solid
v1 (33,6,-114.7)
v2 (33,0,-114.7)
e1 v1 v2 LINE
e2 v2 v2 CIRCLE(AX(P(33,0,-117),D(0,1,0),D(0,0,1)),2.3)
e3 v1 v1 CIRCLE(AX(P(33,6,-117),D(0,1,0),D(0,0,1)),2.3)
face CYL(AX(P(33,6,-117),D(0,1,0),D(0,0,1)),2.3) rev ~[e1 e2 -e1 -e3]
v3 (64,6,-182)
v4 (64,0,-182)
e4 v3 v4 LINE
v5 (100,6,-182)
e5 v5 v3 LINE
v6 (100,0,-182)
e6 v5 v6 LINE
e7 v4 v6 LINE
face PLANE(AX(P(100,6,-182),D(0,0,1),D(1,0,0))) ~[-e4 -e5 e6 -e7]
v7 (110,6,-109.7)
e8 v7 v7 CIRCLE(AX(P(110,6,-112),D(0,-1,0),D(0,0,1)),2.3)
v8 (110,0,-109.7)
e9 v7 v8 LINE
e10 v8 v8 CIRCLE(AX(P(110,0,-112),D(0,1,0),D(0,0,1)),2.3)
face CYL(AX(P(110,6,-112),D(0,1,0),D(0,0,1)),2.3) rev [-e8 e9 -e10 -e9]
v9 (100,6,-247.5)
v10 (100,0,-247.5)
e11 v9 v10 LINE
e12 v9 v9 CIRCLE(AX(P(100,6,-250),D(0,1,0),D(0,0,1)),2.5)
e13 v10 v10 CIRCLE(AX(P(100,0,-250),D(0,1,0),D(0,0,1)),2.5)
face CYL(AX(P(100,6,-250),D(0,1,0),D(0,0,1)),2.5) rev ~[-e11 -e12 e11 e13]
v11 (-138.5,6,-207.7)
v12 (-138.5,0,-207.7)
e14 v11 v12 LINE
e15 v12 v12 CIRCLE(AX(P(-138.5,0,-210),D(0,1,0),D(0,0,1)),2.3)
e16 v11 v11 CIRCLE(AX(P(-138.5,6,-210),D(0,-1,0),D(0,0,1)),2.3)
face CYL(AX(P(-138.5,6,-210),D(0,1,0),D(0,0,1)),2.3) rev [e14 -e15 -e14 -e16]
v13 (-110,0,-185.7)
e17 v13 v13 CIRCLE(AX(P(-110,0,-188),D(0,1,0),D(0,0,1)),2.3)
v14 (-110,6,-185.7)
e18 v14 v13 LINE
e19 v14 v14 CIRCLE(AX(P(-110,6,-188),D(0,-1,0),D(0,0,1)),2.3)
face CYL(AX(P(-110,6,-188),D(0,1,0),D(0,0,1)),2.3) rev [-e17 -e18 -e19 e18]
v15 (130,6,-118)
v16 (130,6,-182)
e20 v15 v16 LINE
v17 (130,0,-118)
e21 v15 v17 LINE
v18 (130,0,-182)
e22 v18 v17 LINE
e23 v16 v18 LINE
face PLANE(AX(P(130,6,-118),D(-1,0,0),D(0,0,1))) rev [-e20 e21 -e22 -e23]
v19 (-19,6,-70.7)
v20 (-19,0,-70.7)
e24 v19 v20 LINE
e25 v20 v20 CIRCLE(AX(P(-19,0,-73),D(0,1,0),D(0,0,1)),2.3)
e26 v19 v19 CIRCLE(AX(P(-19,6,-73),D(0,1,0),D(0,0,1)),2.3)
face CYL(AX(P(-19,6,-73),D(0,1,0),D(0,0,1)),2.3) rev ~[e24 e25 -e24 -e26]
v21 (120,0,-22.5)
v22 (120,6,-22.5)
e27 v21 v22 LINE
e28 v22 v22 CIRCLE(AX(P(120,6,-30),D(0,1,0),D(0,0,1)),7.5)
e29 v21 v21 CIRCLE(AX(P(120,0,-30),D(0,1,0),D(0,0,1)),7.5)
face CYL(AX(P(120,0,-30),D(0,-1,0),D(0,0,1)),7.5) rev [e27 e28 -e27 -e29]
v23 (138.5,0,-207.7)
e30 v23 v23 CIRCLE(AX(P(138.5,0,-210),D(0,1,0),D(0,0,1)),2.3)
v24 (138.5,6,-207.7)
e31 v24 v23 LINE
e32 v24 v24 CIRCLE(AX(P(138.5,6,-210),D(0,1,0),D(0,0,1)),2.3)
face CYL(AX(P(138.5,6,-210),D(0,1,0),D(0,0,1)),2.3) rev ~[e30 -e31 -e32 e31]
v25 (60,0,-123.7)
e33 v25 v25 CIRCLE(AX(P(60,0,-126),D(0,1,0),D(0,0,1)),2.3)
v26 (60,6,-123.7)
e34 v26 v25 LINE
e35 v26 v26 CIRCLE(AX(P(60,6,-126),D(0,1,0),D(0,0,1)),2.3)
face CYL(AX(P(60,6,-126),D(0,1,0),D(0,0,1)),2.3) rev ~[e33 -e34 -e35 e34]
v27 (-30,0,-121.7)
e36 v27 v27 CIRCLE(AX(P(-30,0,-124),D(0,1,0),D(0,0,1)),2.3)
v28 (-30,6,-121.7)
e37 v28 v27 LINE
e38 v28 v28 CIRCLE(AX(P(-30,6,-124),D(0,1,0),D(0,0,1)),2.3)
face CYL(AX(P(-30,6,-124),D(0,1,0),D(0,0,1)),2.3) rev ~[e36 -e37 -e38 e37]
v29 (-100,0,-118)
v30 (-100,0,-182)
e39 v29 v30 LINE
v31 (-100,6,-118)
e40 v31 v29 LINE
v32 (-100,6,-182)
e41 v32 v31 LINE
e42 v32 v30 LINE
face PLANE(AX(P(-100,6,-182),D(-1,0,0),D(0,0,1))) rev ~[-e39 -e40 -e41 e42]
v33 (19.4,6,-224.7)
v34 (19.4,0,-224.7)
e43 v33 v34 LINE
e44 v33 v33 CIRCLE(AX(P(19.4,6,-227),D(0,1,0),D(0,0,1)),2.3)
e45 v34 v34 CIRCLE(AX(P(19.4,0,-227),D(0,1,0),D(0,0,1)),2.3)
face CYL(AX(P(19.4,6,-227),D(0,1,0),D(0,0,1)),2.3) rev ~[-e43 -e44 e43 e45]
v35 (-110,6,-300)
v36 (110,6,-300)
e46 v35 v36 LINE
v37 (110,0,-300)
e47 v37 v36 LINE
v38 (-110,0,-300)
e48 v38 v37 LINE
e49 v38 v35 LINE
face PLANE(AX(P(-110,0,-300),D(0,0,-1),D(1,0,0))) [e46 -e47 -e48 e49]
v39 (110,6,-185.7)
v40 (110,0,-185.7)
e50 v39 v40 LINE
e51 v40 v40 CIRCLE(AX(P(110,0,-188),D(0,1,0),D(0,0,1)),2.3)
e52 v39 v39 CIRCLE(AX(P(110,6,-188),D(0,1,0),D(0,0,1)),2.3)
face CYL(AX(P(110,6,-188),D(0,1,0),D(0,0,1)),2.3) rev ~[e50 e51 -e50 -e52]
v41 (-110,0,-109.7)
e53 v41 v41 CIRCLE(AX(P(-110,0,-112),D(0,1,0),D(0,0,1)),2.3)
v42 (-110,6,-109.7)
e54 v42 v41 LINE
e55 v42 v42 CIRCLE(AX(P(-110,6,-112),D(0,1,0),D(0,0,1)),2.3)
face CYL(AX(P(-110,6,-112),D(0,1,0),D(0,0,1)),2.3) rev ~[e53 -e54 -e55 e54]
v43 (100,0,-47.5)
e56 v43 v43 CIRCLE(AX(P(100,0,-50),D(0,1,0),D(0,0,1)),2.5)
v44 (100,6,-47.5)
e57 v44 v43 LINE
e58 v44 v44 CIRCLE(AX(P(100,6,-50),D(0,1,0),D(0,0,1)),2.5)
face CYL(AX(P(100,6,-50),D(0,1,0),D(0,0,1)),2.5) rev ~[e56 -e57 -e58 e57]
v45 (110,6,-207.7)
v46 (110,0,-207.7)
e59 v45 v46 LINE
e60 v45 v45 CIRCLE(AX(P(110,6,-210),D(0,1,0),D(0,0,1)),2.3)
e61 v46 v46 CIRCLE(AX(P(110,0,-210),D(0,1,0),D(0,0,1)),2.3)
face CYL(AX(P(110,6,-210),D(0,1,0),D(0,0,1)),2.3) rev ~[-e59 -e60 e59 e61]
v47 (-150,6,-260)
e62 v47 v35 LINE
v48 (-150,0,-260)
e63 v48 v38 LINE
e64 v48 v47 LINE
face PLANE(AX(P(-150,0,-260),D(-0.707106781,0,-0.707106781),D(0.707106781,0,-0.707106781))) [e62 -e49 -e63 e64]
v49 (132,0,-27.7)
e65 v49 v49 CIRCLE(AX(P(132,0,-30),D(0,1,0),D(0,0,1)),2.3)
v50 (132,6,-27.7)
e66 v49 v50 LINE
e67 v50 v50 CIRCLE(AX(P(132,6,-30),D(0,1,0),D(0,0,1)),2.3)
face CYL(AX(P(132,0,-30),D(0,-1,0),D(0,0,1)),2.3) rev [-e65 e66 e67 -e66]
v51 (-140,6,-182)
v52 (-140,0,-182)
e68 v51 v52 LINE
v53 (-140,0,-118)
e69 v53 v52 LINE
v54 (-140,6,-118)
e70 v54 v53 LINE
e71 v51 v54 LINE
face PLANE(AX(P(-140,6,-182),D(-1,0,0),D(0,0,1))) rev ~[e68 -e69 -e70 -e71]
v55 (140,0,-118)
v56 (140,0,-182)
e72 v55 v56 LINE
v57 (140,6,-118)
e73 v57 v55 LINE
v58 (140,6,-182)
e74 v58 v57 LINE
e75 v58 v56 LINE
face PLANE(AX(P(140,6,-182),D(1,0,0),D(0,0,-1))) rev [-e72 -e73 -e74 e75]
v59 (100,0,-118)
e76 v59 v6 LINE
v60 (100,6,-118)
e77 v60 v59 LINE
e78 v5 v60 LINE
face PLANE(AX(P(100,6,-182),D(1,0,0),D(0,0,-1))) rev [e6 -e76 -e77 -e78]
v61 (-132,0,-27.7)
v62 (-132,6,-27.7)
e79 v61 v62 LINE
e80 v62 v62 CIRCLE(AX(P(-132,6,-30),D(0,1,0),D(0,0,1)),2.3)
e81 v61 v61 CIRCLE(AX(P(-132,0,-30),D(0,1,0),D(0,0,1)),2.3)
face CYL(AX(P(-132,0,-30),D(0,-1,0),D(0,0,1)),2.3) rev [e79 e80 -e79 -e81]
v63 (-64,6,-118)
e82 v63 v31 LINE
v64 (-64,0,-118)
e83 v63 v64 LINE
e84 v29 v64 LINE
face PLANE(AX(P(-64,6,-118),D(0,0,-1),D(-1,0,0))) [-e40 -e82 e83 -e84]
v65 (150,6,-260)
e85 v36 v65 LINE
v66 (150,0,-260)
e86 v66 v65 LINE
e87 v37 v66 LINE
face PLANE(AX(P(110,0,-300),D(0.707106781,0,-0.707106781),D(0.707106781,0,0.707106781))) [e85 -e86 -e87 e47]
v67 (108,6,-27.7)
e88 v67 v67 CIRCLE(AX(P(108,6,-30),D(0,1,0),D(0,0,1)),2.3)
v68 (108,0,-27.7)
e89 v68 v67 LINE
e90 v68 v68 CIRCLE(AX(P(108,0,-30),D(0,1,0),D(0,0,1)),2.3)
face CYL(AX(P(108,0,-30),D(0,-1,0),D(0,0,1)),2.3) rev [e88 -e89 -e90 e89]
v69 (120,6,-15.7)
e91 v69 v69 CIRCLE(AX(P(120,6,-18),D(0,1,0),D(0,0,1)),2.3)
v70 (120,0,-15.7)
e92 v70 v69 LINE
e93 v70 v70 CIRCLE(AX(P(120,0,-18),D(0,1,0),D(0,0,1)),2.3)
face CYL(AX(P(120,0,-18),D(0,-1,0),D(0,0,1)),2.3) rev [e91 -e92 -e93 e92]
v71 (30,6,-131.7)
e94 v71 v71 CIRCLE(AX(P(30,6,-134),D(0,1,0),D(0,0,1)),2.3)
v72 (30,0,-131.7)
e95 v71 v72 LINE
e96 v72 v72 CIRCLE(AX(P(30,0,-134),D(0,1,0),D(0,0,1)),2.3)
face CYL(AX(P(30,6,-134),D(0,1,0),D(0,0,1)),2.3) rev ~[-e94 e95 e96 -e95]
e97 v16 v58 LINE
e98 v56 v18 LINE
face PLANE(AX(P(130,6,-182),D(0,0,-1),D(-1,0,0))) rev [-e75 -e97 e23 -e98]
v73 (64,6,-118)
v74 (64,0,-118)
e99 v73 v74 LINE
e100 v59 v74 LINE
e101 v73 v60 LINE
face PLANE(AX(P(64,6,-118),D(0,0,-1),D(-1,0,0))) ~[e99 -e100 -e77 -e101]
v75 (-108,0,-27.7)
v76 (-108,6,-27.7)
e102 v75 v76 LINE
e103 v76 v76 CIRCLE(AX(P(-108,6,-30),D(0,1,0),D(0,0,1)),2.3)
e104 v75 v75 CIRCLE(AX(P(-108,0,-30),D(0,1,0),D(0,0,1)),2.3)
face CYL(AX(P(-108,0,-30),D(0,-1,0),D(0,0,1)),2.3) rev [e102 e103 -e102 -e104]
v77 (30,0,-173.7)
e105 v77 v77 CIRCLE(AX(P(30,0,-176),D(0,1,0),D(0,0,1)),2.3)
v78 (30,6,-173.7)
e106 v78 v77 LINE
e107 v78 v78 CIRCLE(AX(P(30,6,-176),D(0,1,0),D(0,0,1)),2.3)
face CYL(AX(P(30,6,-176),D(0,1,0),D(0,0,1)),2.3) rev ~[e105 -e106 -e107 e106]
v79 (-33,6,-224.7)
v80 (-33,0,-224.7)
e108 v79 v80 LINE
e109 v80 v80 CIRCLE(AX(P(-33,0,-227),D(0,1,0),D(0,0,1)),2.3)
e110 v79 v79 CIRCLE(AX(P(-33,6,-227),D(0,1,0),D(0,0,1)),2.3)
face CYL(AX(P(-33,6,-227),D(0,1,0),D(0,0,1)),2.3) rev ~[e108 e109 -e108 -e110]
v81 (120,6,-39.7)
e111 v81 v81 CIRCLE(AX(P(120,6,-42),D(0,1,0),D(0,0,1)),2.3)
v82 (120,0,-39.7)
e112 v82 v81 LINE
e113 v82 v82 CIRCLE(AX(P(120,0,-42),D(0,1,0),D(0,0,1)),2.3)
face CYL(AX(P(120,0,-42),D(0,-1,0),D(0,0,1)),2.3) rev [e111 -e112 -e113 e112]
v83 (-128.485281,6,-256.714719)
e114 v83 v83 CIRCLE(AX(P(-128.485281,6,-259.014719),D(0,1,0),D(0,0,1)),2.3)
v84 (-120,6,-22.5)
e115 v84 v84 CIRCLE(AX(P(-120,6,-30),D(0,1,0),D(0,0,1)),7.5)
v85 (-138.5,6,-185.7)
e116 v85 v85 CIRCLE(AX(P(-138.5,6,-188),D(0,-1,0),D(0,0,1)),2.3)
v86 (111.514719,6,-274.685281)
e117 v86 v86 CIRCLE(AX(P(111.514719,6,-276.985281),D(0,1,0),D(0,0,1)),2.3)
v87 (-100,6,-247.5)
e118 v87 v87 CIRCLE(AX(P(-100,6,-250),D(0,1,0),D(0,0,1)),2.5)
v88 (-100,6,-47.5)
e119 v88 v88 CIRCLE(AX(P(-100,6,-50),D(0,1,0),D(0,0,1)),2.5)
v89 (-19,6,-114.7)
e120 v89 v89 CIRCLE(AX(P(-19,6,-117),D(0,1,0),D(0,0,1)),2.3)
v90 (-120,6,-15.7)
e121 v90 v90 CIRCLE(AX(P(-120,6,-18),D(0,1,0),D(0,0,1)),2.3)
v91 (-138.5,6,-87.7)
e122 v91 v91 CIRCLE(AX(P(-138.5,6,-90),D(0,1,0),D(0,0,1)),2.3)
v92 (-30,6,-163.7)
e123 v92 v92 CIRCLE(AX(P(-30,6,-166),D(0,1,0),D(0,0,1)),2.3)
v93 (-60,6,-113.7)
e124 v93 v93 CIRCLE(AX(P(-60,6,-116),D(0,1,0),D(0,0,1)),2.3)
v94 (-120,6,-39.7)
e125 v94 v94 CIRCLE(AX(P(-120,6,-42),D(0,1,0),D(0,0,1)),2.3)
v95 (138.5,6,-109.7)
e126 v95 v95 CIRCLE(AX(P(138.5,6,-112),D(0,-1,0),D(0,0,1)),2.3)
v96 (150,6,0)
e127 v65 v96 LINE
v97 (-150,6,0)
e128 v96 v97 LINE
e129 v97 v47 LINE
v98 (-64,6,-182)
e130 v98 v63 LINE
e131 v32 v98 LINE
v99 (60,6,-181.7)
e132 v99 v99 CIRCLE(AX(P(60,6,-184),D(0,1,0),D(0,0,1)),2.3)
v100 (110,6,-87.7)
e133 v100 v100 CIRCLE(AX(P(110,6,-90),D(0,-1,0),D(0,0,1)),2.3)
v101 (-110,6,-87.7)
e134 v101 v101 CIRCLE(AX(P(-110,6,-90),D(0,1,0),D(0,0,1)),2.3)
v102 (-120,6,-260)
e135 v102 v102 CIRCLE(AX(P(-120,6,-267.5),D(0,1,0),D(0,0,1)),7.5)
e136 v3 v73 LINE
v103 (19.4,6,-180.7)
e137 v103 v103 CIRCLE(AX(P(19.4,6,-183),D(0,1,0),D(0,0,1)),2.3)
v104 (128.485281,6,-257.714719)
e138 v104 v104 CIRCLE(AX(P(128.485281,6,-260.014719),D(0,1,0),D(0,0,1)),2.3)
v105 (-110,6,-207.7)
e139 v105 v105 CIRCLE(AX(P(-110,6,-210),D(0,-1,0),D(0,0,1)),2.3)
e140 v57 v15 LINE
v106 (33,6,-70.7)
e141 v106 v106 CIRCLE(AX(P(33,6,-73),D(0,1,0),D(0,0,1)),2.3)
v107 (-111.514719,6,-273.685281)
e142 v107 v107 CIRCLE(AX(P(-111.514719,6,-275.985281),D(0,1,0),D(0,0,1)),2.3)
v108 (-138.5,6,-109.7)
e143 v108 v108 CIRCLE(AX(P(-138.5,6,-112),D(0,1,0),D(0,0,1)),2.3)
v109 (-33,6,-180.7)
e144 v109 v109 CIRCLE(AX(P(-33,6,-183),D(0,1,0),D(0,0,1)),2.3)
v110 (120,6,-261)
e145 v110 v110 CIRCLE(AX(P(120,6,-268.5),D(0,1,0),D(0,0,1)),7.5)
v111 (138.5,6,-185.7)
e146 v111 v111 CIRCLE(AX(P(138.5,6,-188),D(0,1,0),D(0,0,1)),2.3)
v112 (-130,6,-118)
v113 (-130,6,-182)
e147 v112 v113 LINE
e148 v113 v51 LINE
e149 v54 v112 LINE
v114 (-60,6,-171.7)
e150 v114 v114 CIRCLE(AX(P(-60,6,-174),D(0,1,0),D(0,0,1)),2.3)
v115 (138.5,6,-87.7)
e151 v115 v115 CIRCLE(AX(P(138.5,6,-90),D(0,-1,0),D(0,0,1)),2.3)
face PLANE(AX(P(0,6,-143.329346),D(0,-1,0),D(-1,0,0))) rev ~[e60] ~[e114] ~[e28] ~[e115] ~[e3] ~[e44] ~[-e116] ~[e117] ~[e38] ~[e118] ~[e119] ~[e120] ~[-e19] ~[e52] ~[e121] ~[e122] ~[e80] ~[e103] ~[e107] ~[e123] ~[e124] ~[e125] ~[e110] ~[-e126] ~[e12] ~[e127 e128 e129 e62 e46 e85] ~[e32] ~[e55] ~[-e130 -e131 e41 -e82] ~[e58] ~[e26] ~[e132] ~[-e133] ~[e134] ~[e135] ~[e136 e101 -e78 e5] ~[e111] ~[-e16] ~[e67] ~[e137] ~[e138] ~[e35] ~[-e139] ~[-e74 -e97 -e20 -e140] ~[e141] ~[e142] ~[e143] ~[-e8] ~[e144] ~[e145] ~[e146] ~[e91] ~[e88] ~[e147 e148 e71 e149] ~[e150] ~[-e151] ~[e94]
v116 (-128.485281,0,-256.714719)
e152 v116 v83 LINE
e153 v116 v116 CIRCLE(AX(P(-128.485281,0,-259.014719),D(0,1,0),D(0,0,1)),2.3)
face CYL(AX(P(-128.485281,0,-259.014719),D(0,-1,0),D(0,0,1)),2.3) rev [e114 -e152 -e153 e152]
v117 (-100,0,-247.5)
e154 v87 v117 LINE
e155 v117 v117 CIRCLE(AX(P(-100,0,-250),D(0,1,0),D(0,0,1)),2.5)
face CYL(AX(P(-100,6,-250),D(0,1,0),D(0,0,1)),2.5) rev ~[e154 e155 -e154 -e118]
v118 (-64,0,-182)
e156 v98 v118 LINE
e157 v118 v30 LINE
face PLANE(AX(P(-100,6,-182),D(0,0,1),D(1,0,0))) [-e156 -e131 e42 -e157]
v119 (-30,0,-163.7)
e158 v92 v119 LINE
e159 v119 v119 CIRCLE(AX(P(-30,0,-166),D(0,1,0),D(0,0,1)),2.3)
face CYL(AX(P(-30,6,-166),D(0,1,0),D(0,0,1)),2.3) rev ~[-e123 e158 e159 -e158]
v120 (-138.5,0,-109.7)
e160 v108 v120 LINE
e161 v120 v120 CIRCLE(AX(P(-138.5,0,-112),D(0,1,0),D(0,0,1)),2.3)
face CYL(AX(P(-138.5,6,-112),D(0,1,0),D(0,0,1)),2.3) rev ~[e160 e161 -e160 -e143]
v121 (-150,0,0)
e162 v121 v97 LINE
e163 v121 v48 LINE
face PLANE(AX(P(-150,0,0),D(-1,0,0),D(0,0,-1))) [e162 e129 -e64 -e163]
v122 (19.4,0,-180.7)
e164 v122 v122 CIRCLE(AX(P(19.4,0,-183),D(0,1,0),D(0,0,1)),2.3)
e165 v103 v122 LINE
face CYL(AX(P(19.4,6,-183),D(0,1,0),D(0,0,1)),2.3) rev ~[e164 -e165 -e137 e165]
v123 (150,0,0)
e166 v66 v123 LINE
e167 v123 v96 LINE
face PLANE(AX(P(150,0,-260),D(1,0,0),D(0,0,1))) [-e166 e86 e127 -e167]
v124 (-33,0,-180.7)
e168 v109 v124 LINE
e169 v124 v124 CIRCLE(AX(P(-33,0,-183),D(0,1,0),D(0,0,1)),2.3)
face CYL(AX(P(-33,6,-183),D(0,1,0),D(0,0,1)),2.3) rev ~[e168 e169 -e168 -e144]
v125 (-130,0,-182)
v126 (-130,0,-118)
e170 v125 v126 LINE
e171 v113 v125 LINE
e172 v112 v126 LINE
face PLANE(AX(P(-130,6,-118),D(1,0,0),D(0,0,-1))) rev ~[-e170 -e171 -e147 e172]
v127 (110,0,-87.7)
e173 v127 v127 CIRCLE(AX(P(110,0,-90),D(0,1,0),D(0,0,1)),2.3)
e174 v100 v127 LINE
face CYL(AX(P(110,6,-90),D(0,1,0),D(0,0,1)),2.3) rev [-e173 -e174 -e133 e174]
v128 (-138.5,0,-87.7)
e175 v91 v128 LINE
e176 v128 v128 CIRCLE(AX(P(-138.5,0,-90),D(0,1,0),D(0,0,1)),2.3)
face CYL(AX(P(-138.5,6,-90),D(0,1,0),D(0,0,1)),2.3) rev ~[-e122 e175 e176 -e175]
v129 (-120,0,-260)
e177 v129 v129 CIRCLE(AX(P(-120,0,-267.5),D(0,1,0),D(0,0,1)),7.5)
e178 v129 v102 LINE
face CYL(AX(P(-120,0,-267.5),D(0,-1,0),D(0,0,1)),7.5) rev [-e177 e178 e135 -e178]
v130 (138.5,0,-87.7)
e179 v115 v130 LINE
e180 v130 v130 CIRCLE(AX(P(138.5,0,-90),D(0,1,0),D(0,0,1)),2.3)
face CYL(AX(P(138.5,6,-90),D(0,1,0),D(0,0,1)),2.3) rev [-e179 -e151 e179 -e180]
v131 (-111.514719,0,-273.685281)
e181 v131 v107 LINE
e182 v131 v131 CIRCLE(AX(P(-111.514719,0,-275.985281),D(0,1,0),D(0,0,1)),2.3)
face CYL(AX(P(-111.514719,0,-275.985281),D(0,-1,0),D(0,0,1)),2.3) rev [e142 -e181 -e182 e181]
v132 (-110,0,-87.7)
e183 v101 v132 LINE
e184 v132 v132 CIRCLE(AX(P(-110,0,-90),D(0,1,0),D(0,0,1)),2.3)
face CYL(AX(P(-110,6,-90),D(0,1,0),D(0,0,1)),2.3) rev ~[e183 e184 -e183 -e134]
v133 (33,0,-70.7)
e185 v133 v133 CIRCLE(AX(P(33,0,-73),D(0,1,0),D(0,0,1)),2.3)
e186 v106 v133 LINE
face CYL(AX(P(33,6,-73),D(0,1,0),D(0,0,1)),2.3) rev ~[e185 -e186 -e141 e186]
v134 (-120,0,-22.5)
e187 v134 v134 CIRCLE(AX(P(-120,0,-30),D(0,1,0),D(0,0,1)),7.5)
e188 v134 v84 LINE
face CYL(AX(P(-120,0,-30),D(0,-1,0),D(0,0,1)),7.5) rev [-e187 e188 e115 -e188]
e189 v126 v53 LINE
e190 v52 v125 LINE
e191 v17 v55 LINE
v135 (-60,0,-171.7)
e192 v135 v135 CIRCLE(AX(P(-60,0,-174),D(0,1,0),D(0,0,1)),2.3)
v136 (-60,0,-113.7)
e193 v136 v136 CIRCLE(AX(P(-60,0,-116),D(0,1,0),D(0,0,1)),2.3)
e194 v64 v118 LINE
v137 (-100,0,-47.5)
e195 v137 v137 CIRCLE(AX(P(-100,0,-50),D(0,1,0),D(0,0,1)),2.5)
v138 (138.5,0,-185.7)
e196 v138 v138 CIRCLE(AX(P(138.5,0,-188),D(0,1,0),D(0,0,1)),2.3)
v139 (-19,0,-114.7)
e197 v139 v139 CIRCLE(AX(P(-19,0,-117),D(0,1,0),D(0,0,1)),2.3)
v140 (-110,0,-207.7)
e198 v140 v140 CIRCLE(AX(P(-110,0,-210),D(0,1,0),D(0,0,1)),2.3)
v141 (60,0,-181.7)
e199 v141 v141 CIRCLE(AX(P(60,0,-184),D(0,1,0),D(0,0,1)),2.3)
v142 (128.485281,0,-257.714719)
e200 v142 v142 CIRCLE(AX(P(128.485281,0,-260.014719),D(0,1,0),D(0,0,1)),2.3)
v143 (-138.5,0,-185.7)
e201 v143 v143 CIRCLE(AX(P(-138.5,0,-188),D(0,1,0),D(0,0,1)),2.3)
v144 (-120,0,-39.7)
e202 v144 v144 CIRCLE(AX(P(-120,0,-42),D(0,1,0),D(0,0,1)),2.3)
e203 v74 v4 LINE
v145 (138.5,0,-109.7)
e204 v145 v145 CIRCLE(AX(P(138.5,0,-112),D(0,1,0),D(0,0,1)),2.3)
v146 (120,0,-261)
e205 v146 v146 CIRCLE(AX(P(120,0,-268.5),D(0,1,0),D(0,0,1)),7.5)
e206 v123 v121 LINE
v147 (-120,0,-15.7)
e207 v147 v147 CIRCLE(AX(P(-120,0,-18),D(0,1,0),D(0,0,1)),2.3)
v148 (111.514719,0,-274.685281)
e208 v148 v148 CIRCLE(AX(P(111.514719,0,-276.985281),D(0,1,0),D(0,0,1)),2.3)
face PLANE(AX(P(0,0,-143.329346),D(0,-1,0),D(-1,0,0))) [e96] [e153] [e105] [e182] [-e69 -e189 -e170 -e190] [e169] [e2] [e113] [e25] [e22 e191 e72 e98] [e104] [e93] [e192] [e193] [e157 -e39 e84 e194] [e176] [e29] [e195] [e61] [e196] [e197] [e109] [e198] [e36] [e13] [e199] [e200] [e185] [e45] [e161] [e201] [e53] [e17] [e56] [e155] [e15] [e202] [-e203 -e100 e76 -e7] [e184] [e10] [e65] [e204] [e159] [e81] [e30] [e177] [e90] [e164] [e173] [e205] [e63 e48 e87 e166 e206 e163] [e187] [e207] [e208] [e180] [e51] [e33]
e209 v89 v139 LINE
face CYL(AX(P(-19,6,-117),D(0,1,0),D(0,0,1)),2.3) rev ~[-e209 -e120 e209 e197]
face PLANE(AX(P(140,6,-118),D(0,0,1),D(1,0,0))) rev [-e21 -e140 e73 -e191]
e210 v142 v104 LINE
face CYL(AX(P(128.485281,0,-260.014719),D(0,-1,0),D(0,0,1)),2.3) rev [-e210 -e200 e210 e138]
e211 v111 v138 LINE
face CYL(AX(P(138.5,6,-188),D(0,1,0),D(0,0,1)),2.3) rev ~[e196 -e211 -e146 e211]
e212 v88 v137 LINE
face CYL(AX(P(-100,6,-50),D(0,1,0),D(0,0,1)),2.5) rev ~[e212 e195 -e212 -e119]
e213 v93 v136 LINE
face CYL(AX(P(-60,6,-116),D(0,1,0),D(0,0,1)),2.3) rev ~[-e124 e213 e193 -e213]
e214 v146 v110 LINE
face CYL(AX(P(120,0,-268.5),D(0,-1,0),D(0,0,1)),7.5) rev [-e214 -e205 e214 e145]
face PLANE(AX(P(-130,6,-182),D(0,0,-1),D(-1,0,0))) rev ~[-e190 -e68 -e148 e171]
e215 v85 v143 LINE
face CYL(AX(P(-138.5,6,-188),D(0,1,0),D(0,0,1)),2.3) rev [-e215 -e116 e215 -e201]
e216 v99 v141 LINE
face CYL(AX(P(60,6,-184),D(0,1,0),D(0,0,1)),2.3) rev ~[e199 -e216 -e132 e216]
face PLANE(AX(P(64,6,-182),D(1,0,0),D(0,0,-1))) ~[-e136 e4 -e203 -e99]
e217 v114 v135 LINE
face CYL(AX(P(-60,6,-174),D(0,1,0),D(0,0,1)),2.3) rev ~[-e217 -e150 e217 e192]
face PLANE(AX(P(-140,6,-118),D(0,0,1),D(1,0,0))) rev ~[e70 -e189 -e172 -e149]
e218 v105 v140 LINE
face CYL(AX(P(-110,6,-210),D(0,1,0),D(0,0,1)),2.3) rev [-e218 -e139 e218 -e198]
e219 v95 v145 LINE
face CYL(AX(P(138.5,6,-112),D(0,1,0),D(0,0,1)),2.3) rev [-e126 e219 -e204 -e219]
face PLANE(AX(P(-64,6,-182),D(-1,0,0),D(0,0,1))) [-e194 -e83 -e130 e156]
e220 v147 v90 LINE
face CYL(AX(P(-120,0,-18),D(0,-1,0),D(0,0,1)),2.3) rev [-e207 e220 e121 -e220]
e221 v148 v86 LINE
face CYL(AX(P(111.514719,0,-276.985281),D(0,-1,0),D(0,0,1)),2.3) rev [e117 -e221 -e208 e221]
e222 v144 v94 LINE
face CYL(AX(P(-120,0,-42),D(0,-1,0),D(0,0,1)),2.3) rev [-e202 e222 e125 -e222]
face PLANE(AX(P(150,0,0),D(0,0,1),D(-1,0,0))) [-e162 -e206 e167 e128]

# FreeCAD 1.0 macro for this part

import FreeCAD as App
import Part
import Sketcher

doc = App.newDocument("Part")
body = doc.addObject("PartDesign::Body", "Body")

# Sketch on XZ plane
sketch1 = body.newObject("Sketcher::SketchObject", "Sketch")
sketch1.AttachmentSupport = (doc.getObject("XZ_Plane"), [""])
sketch1.MapMode = "FlatFace"
sketch1.addGeometry(Part.LineSegment(App.Vector(-150, -260, 0), App.Vector(-150, 0, 0)), False)
sketch1.addGeometry(Part.LineSegment(App.Vector(-150, 0, 0), App.Vector(150, 0, 0)), False)
sketch1.addGeometry(Part.LineSegment(App.Vector(150, 0, 0), App.Vector(150, -260, 0)), False)
sketch1.addGeometry(Part.LineSegment(App.Vector(150, -260, 0), App.Vector(110, -300, 0)), False)
sketch1.addGeometry(Part.LineSegment(App.Vector(110, -300, 0), App.Vector(-110, -300, 0)), False)
sketch1.addGeometry(Part.LineSegment(App.Vector(-110, -300, 0), App.Vector(-150, -260, 0)), False)
sketch1.addGeometry(Part.Circle(App.Vector(120, -18, 0), App.Vector(0, 0, 1), 2.3), False)
sketch1.addGeometry(Part.Circle(App.Vector(132, -30, 0), App.Vector(0, 0, 1), 2.3), False)
sketch1.addGeometry(Part.Circle(App.Vector(120, -30, 0), App.Vector(0, 0, 1), 7.5), False)
sketch1.addGeometry(Part.Circle(App.Vector(108, -30, 0), App.Vector(0, 0, 1), 2.3), False)
sketch1.addGeometry(Part.Circle(App.Vector(120, -42, 0), App.Vector(0, 0, 1), 2.3), False)
sketch1.addGeometry(Part.Circle(App.Vector(-108, -30, 0), App.Vector(0, 0, 1), 2.3), False)
sketch1.addGeometry(Part.Circle(App.Vector(-120, -18, 0), App.Vector(0, 0, 1), 2.3), False)
sketch1.addGeometry(Part.Circle(App.Vector(-120, -30, 0), App.Vector(0, 0, 1), 7.5), False)
sketch1.addGeometry(Part.Circle(App.Vector(-132, -30, 0), App.Vector(0, 0, 1), 2.3), False)
sketch1.addGeometry(Part.Circle(App.Vector(-120, -42, 0), App.Vector(0, 0, 1), 2.3), False)
sketch1.addGeometry(Part.Circle(App.Vector(128.5, -260, 0), App.Vector(0, 0, 1), 2.3), False)
sketch1.addGeometry(Part.Circle(App.Vector(120, -268.5, 0), App.Vector(0, 0, 1), 7.5), False)
sketch1.addGeometry(Part.Circle(App.Vector(111.5, -277, 0), App.Vector(0, 0, 1), 2.3), False)
sketch1.addGeometry(Part.Circle(App.Vector(-128.5, -259, 0), App.Vector(0, 0, 1), 2.3), False)
sketch1.addGeometry(Part.Circle(App.Vector(-111.5, -276, 0), App.Vector(0, 0, 1), 2.3), False)
sketch1.addGeometry(Part.Circle(App.Vector(-120, -267.5, 0), App.Vector(0, 0, 1), 7.5), False)
sketch1.addConstraint(Sketcher.Constraint("Coincident", 0, 2, 1, 1))
sketch1.addConstraint(Sketcher.Constraint("Coincident", 1, 2, 2, 1))
sketch1.addConstraint(Sketcher.Constraint("Coincident", 2, 2, 3, 1))
sketch1.addConstraint(Sketcher.Constraint("Coincident", 3, 2, 4, 1))
sketch1.addConstraint(Sketcher.Constraint("Coincident", 4, 2, 5, 1))
sketch1.addConstraint(Sketcher.Constraint("Coincident", 5, 2, 0, 1))
sketch1.addConstraint(Sketcher.Constraint("Vertical", 0))
sketch1.addConstraint(Sketcher.Constraint("Horizontal", 1))
sketch1.addConstraint(Sketcher.Constraint("Vertical", 2))
sketch1.addConstraint(Sketcher.Constraint("Horizontal", 4))
sketch1.addConstraint(Sketcher.Constraint("Equal", 6, 7))
sketch1.addConstraint(Sketcher.Constraint("Equal", 7, 9))
sketch1.addConstraint(Sketcher.Constraint("Equal", 9, 10))
sketch1.addConstraint(Sketcher.Constraint("Equal", 10, 11))
sketch1.addConstraint(Sketcher.Constraint("Equal", 11, 12))
sketch1.addConstraint(Sketcher.Constraint("Equal", 8, 13))
sketch1.addConstraint(Sketcher.Constraint("Equal", 12, 14))
sketch1.addConstraint(Sketcher.Constraint("Equal", 14, 15))
sketch1.addConstraint(Sketcher.Constraint("Equal", 15, 16))
sketch1.addConstraint(Sketcher.Constraint("Equal", 13, 17))
sketch1.addConstraint(Sketcher.Constraint("Equal", 16, 18))
sketch1.addConstraint(Sketcher.Constraint("Equal", 18, 19))
sketch1.addConstraint(Sketcher.Constraint("Equal", 19, 20))
sketch1.addConstraint(Sketcher.Constraint("Equal", 17, 21))
sketch1.addConstraint(Sketcher.Constraint("Symmetric", 0, 2, 1, 2, -1, 1))
sketch1.addConstraint(Sketcher.Constraint("Symmetric", 9, 3, 11, 3, -2))
sketch1.addConstraint(Sketcher.Constraint("Symmetric", 6, 3, 12, 3, -2))
sketch1.addConstraint(Sketcher.Constraint("Symmetric", 8, 3, 13, 3, -2))
sketch1.addConstraint(Sketcher.Constraint("Symmetric", 7, 3, 14, 3, -2))
sketch1.addConstraint(Sketcher.Constraint("Symmetric", 10, 3, 15, 3, -2))
sketch1.addConstraint(Sketcher.Constraint("Perpendicular", 3, 5))
sketch1.addConstraint(Sketcher.Constraint("Horizontal", 7, 3, 8, 3))
sketch1.addConstraint(Sketcher.Constraint("Horizontal", 8, 3, 9, 3))
sketch1.addConstraint(Sketcher.Constraint("Horizontal", 2, 2, 5, 2))
sketch1.addConstraint(Sketcher.Constraint("Vertical", 6, 3, 8, 3))
sketch1.addConstraint(Sketcher.Constraint("Vertical", 8, 3, 10, 3))
sketch1.addConstraint(Sketcher.Constraint("Vertical", 10, 3, 17, 3))
sketch1.addConstraint(Sketcher.Constraint("Vertical", 15, 3, 21, 3))
sketch1.addConstraint(Sketcher.Constraint("Equal", 3, 5))
sketch1.addConstraint(Sketcher.Constraint("Diameter", 8, 15.0))
sketch1.addConstraint(Sketcher.Constraint("Diameter", 6, 4.6))
sketch1.addConstraint(Sketcher.Constraint("DistanceX", 1, 1, 1, 2, 300.0))
sketch1.addConstraint(Sketcher.Constraint("DistanceX", 4, 2, 4, 1, 220.0))
sketch1.addConstraint(Sketcher.Constraint("DistanceY", 0, 1, 0, 2, 260.0))
sketch1.addConstraint(Sketcher.Constraint("DistanceX", -1, 1, 6, 3, 120.0))
sketch1.addConstraint(Sketcher.Constraint("DistanceY", 6, 3, -1, 1, 18.0))
sketch1.addConstraint(Sketcher.Constraint("DistanceX", -1, 1, 7, 3, 132.0))
sketch1.addConstraint(Sketcher.Constraint("DistanceY", 7, 3, -1, 1, 30.0))
sketch1.addConstraint(Sketcher.Constraint("DistanceX", -1, 1, 9, 3, 108.0))
sketch1.addConstraint(Sketcher.Constraint("DistanceY", 10, 3, -1, 1, 42.0))
sketch1.addConstraint(Sketcher.Constraint("DistanceX", 19, 3, 18, 3, 240.0))
sketch1.addConstraint(Sketcher.Constraint("DistanceY", 18, 3, 20, 3, 1.0))
sketch1.addConstraint(Sketcher.Constraint("DistanceX", 20, 3, 16, 3, 240.0))
sketch1.addConstraint(Sketcher.Constraint("DistanceY", 17, 3, -1, 1, 268.5))
sketch1.addConstraint(Sketcher.Constraint("DistanceY", 21, 3, -1, 1, 267.5))
sketch1.addConstraint(Sketcher.Constraint("DistanceX", -1, 1, 16, 3, 128.485281))
sketch1.addConstraint(Sketcher.Constraint("DistanceY", 16, 3, -1, 1, 260.014719))
sketch1.addConstraint(Sketcher.Constraint("DistanceX", -1, 1, 18, 3, 111.514719))
sketch1.addConstraint(Sketcher.Constraint("DistanceY", 18, 3, -1, 1, 276.985281))
sketch1.addConstraint(Sketcher.Constraint("DistanceY", 19, 3, -1, 1, 259.014719))
pad1 = body.newObject("PartDesign::Pad", "Pad")
pad1.Profile = sketch1
pad1.Length = 6
pad1.Reversed = True

# Sketch on XZ plane
sketch2 = body.newObject("Sketcher::SketchObject", "Sketch001")
sketch2.AttachmentSupport = (doc.getObject("XZ_Plane"), [""])
sketch2.MapMode = "FlatFace"
sketch2.AttachmentOffset = App.Placement(App.Vector(0, 0, -6), App.Rotation())
sketch2.addGeometry(Part.LineSegment(App.Vector(-130, -182, 0), App.Vector(-140, -182, 0)), False)
sketch2.addGeometry(Part.LineSegment(App.Vector(-140, -182, 0), App.Vector(-140, -118, 0)), False)
sketch2.addGeometry(Part.LineSegment(App.Vector(-140, -118, 0), App.Vector(-130, -118, 0)), False)
sketch2.addGeometry(Part.LineSegment(App.Vector(-130, -118, 0), App.Vector(-130, -182, 0)), False)
sketch2.addConstraint(Sketcher.Constraint("Coincident", 0, 2, 1, 1))
sketch2.addConstraint(Sketcher.Constraint("Coincident", 1, 2, 2, 1))
sketch2.addConstraint(Sketcher.Constraint("Coincident", 2, 2, 3, 1))
sketch2.addConstraint(Sketcher.Constraint("Coincident", 3, 2, 0, 1))
sketch2.addConstraint(Sketcher.Constraint("Horizontal", 0))
sketch2.addConstraint(Sketcher.Constraint("Vertical", 1))
sketch2.addConstraint(Sketcher.Constraint("Horizontal", 2))
sketch2.addConstraint(Sketcher.Constraint("Vertical", 3))
sketch2.addConstraint(Sketcher.Constraint("DistanceX", 0, 2, 0, 1, 10.0))
sketch2.addConstraint(Sketcher.Constraint("DistanceY", 1, 1, 1, 2, 64.0))
sketch2.addConstraint(Sketcher.Constraint("DistanceX", 0, 2, -1, 1, 140.0))
sketch2.addConstraint(Sketcher.Constraint("DistanceY", 0, 2, -1, 1, 182.0))
pocket1 = body.newObject("PartDesign::Pocket", "Pocket")
pocket1.Profile = sketch2
pocket1.Length = 10.5
pocket1.Reversed = True

# Sketch on XZ plane
sketch3 = body.newObject("Sketcher::SketchObject", "Sketch002")
sketch3.AttachmentSupport = (doc.getObject("XZ_Plane"), [""])
sketch3.MapMode = "FlatFace"
sketch3.AttachmentOffset = App.Placement(App.Vector(0, 0, -6), App.Rotation())
sketch3.addGeometry(Part.Circle(App.Vector(110, -210, 0), App.Vector(0, 0, 1), 2.3), False)
sketch3.addGeometry(Part.Circle(App.Vector(138.5, -210, 0), App.Vector(0, 0, 1), 2.3), False)
sketch3.addGeometry(Part.Circle(App.Vector(138.5, -188, 0), App.Vector(0, 0, 1), 2.3), False)
sketch3.addGeometry(Part.Circle(App.Vector(110, -188, 0), App.Vector(0, 0, 1), 2.3), False)
sketch3.addGeometry(Part.Circle(App.Vector(-138.5, -90, 0), App.Vector(0, 0, 1), 2.3), False)
sketch3.addGeometry(Part.Circle(App.Vector(-138.5, -112, 0), App.Vector(0, 0, 1), 2.3), False)
sketch3.addGeometry(Part.Circle(App.Vector(-110, -112, 0), App.Vector(0, 0, 1), 2.3), False)
sketch3.addGeometry(Part.Circle(App.Vector(-110, -90, 0), App.Vector(0, 0, 1), 2.3), False)
sketch3.addConstraint(Sketcher.Constraint("Equal", 0, 1))
sketch3.addConstraint(Sketcher.Constraint("Equal", 1, 2))
sketch3.addConstraint(Sketcher.Constraint("Equal", 2, 3))
sketch3.addConstraint(Sketcher.Constraint("Equal", 3, 4))
sketch3.addConstraint(Sketcher.Constraint("Equal", 4, 5))
sketch3.addConstraint(Sketcher.Constraint("Equal", 5, 6))
sketch3.addConstraint(Sketcher.Constraint("Equal", 6, 7))
sketch3.addConstraint(Sketcher.Constraint("Horizontal", 0, 3, 1, 3))
sketch3.addConstraint(Sketcher.Constraint("Horizontal", 2, 3, 3, 3))
sketch3.addConstraint(Sketcher.Constraint("Horizontal", 5, 3, 6, 3))
sketch3.addConstraint(Sketcher.Constraint("Horizontal", 4, 3, 7, 3))
sketch3.addConstraint(Sketcher.Constraint("Vertical", 1, 3, 2, 3))
sketch3.addConstraint(Sketcher.Constraint("Vertical", 0, 3, 3, 3))
sketch3.addConstraint(Sketcher.Constraint("Vertical", 4, 3, 5, 3))
sketch3.addConstraint(Sketcher.Constraint("Vertical", 6, 3, 7, 3))
sketch3.addConstraint(Sketcher.Constraint("Diameter", 0, 4.6))
sketch3.addConstraint(Sketcher.Constraint("DistanceX", -1, 1, 0, 3, 110.0))
sketch3.addConstraint(Sketcher.Constraint("DistanceY", 0, 3, -1, 1, 210.0))
sketch3.addConstraint(Sketcher.Constraint("DistanceY", 2, 3, -1, 1, 188.0))
sketch3.addConstraint(Sketcher.Constraint("DistanceY", 4, 3, -1, 1, 90.0))
sketch3.addConstraint(Sketcher.Constraint("DistanceY", 5, 3, -1, 1, 112.0))
sketch3.addConstraint(Sketcher.Constraint("DistanceX", 6, 3, -1, 1, 110.0))
sketch3.addConstraint(Sketcher.Constraint("DistanceX", 4, 3, 2, 3, 277.0))
sketch3.addConstraint(Sketcher.Constraint("DistanceX", -1, 1, 1, 3, 138.5))
pocket2 = body.newObject("PartDesign::Pocket", "Pocket001")
pocket2.Profile = sketch3
pocket2.Length = 50
pocket2.Reversed = True

# Sketch on XZ plane
sketch4 = body.newObject("Sketcher::SketchObject", "Sketch003")
sketch4.AttachmentSupport = (doc.getObject("XZ_Plane"), [""])
sketch4.MapMode = "FlatFace"
sketch4.AttachmentOffset = App.Placement(App.Vector(0, 0, -6), App.Rotation())
sketch4.addGeometry(Part.LineSegment(App.Vector(-100, -182, 0), App.Vector(-100, -118, 0)), False)
sketch4.addGeometry(Part.LineSegment(App.Vector(-100, -118, 0), App.Vector(-64, -118, 0)), False)
sketch4.addGeometry(Part.LineSegment(App.Vector(-64, -118, 0), App.Vector(-64, -182, 0)), False)
sketch4.addGeometry(Part.LineSegment(App.Vector(-64, -182, 0), App.Vector(-100, -182, 0)), False)
sketch4.addConstraint(Sketcher.Constraint("Coincident", 0, 2, 1, 1))
sketch4.addConstraint(Sketcher.Constraint("Coincident", 1, 2, 2, 1))
sketch4.addConstraint(Sketcher.Constraint("Coincident", 2, 2, 3, 1))
sketch4.addConstraint(Sketcher.Constraint("Coincident", 3, 2, 0, 1))
sketch4.addConstraint(Sketcher.Constraint("Vertical", 0))
sketch4.addConstraint(Sketcher.Constraint("Horizontal", 1))
sketch4.addConstraint(Sketcher.Constraint("Vertical", 2))
sketch4.addConstraint(Sketcher.Constraint("Horizontal", 3))
sketch4.addConstraint(Sketcher.Constraint("DistanceX", 1, 1, 1, 2, 36.0))
sketch4.addConstraint(Sketcher.Constraint("DistanceY", 0, 1, 0, 2, 64.0))
sketch4.addConstraint(Sketcher.Constraint("DistanceX", 0, 2, -1, 1, 100.0))
sketch4.addConstraint(Sketcher.Constraint("DistanceY", 0, 2, -1, 1, 118.0))
pocket3 = body.newObject("PartDesign::Pocket", "Pocket002")
pocket3.Profile = sketch4
pocket3.Length = 50
pocket3.Reversed = True
doc.recompute()

mirrored = body.newObject("PartDesign::Mirrored", "Mirrored")
mirrored.Originals = [pocket1]
mirrored.MirrorPlane = (doc.getObject("YZ_Plane"), [""])
body.Tip = mirrored
doc.recompute()

mirrored2 = body.newObject("PartDesign::Mirrored", "Mirrored001")
mirrored2.Originals = [pocket3]
mirrored2.MirrorPlane = (doc.getObject("YZ_Plane"), [""])
body.Tip = mirrored2
doc.recompute()

mirrored3 = body.newObject("PartDesign::Mirrored", "Mirrored002")
mirrored3.Originals = [pocket2]
mirrored3.MirrorPlane = (doc.getObject("YZ_Plane"), [""])
body.Tip = mirrored3

# Sketch on XZ plane
sketch5 = body.newObject("Sketcher::SketchObject", "Sketch004")
sketch5.AttachmentSupport = (doc.getObject("XZ_Plane"), [""])
sketch5.MapMode = "FlatFace"
sketch5.AttachmentOffset = App.Placement(App.Vector(0, 0, -6), App.Rotation())
sketch5.addGeometry(Part.Circle(App.Vector(-100, -50, 0), App.Vector(0, 0, 1), 2.5), False)
sketch5.addGeometry(Part.Circle(App.Vector(100, -50, 0), App.Vector(0, 0, 1), 2.5), False)
sketch5.addGeometry(Part.Circle(App.Vector(100, -250, 0), App.Vector(0, 0, 1), 2.5), False)
sketch5.addGeometry(Part.Circle(App.Vector(-100, -250, 0), App.Vector(0, 0, 1), 2.5), False)
sketch5.addConstraint(Sketcher.Constraint("Equal", 0, 1))
sketch5.addConstraint(Sketcher.Constraint("Equal", 1, 2))
sketch5.addConstraint(Sketcher.Constraint("Equal", 2, 3))
sketch5.addConstraint(Sketcher.Constraint("Symmetric", 0, 3, 1, 3, -2))
sketch5.addConstraint(Sketcher.Constraint("Symmetric", 2, 3, 3, 3, -2))
sketch5.addConstraint(Sketcher.Constraint("Vertical", 1, 3, 2, 3))
sketch5.addConstraint(Sketcher.Constraint("Diameter", 0, 5.0))
sketch5.addConstraint(Sketcher.Constraint("DistanceX", 0, 3, -1, 1, 100.0))
sketch5.addConstraint(Sketcher.Constraint("DistanceY", 0, 3, -1, 1, 50.0))
sketch5.addConstraint(Sketcher.Constraint("DistanceY", 2, 3, -1, 1, 250.0))
pocket4 = body.newObject("PartDesign::Pocket", "Pocket003")
pocket4.Profile = sketch5
pocket4.Length = 35
pocket4.Reversed = True

# Sketch on XZ plane
sketch6 = body.newObject("Sketcher::SketchObject", "Sketch005")
sketch6.AttachmentSupport = (doc.getObject("XZ_Plane"), [""])
sketch6.MapMode = "FlatFace"
sketch6.AttachmentOffset = App.Placement(App.Vector(0, 0, -6), App.Rotation())
sketch6.addGeometry(Part.Circle(App.Vector(-60, -174, 0), App.Vector(0, 0, 1), 2.3), False)
sketch6.addGeometry(Part.Circle(App.Vector(-60, -116, 0), App.Vector(0, 0, 1), 2.3), False)
sketch6.addGeometry(Part.Circle(App.Vector(-30, -166, 0), App.Vector(0, 0, 1), 2.3), False)
sketch6.addGeometry(Part.Circle(App.Vector(-30, -124, 0), App.Vector(0, 0, 1), 2.3), False)
sketch6.addGeometry(Part.Circle(App.Vector(60, -184, 0), App.Vector(0, 0, 1), 2.3), False)
sketch6.addGeometry(Part.Circle(App.Vector(30, -176, 0), App.Vector(0, 0, 1), 2.3), False)
sketch6.addGeometry(Part.Circle(App.Vector(30, -134, 0), App.Vector(0, 0, 1), 2.3), False)
sketch6.addGeometry(Part.Circle(App.Vector(60, -126, 0), App.Vector(0, 0, 1), 2.3), False)
sketch6.addConstraint(Sketcher.Constraint("Equal", 0, 1))
sketch6.addConstraint(Sketcher.Constraint("Equal", 1, 2))
sketch6.addConstraint(Sketcher.Constraint("Equal", 2, 3))
sketch6.addConstraint(Sketcher.Constraint("Equal", 3, 4))
sketch6.addConstraint(Sketcher.Constraint("Equal", 4, 5))
sketch6.addConstraint(Sketcher.Constraint("Equal", 5, 6))
sketch6.addConstraint(Sketcher.Constraint("Equal", 6, 7))
sketch6.addConstraint(Sketcher.Constraint("Vertical", 0, 3, 1, 3))
sketch6.addConstraint(Sketcher.Constraint("Vertical", 2, 3, 3, 3))
sketch6.addConstraint(Sketcher.Constraint("Vertical", 5, 3, 6, 3))
sketch6.addConstraint(Sketcher.Constraint("Vertical", 4, 3, 7, 3))
sketch6.addConstraint(Sketcher.Constraint("Diameter", 0, 4.6))
sketch6.addConstraint(Sketcher.Constraint("DistanceX", 0, 3, -1, 1, 60.0))
sketch6.addConstraint(Sketcher.Constraint("DistanceY", 0, 3, -1, 1, 174.0))
sketch6.addConstraint(Sketcher.Constraint("DistanceY", 1, 3, -1, 1, 116.0))
sketch6.addConstraint(Sketcher.Constraint("DistanceX", 2, 3, -1, 1, 30.0))
sketch6.addConstraint(Sketcher.Constraint("DistanceY", 2, 3, -1, 1, 166.0))
sketch6.addConstraint(Sketcher.Constraint("DistanceY", 3, 3, -1, 1, 124.0))
sketch6.addConstraint(Sketcher.Constraint("DistanceX", -1, 1, 4, 3, 60.0))
sketch6.addConstraint(Sketcher.Constraint("DistanceY", 4, 3, -1, 1, 184.0))
sketch6.addConstraint(Sketcher.Constraint("DistanceX", -1, 1, 5, 3, 30.0))
sketch6.addConstraint(Sketcher.Constraint("DistanceY", 5, 3, -1, 1, 176.0))
sketch6.addConstraint(Sketcher.Constraint("DistanceY", 6, 3, -1, 1, 134.0))
sketch6.addConstraint(Sketcher.Constraint("DistanceY", 7, 3, -1, 1, 126.0))
pocket5 = body.newObject("PartDesign::Pocket", "Pocket004")
pocket5.Profile = sketch6
pocket5.Length = 35
pocket5.Reversed = True

# Sketch on XZ plane
sketch7 = body.newObject("Sketcher::SketchObject", "Sketch006")
sketch7.AttachmentSupport = (doc.getObject("XZ_Plane"), [""])
sketch7.MapMode = "FlatFace"
sketch7.AttachmentOffset = App.Placement(App.Vector(0, 0, -6), App.Rotation())
sketch7.addGeometry(Part.Circle(App.Vector(-33, -227, 0), App.Vector(0, 0, 1), 2.3), False)
sketch7.addGeometry(Part.Circle(App.Vector(-19, -73, 0), App.Vector(0, 0, 1), 2.3), False)
sketch7.addGeometry(Part.Circle(App.Vector(33, -73, 0), App.Vector(0, 0, 1), 2.3), False)
sketch7.addGeometry(Part.Circle(App.Vector(-33, -183, 0), App.Vector(0, 0, 1), 2.3), False)
sketch7.addGeometry(Part.Circle(App.Vector(33, -117, 0), App.Vector(0, 0, 1), 2.3), False)
sketch7.addGeometry(Part.Circle(App.Vector(-19, -117, 0), App.Vector(0, 0, 1), 2.3), False)
sketch7.addGeometry(Part.Circle(App.Vector(19.4, -227, 0), App.Vector(0, 0, 1), 2.3), False)
sketch7.addGeometry(Part.Circle(App.Vector(19.4, -183, 0), App.Vector(0, 0, 1), 2.3), False)
sketch7.addConstraint(Sketcher.Constraint("Equal", 0, 1))
sketch7.addConstraint(Sketcher.Constraint("Equal", 1, 2))
sketch7.addConstraint(Sketcher.Constraint("Equal", 2, 3))
sketch7.addConstraint(Sketcher.Constraint("Equal", 3, 4))
sketch7.addConstraint(Sketcher.Constraint("Equal", 4, 5))
sketch7.addConstraint(Sketcher.Constraint("Equal", 5, 6))
sketch7.addConstraint(Sketcher.Constraint("Equal", 6, 7))
sketch7.addConstraint(Sketcher.Constraint("Horizontal", 1, 3, 2, 3))
sketch7.addConstraint(Sketcher.Constraint("Horizontal", 4, 3, 5, 3))
sketch7.addConstraint(Sketcher.Constraint("Horizontal", 0, 3, 6, 3))
sketch7.addConstraint(Sketcher.Constraint("Horizontal", 3, 3, 7, 3))
sketch7.addConstraint(Sketcher.Constraint("Vertical", 0, 3, 3, 3))
sketch7.addConstraint(Sketcher.Constraint("Vertical", 2, 3, 4, 3))
sketch7.addConstraint(Sketcher.Constraint("Vertical", 1, 3, 5, 3))
sketch7.addConstraint(Sketcher.Constraint("Vertical", 6, 3, 7, 3))
sketch7.addConstraint(Sketcher.Constraint("Diameter", 0, 4.6))
sketch7.addConstraint(Sketcher.Constraint("DistanceX", 0, 3, -1, 1, 33.0))
sketch7.addConstraint(Sketcher.Constraint("DistanceY", 0, 3, -1, 1, 227.0))
sketch7.addConstraint(Sketcher.Constraint("DistanceX", 1, 3, -1, 1, 19.0))
sketch7.addConstraint(Sketcher.Constraint("DistanceY", 1, 3, -1, 1, 73.0))
sketch7.addConstraint(Sketcher.Constraint("DistanceX", -1, 1, 2, 3, 33.0))
sketch7.addConstraint(Sketcher.Constraint("DistanceY", 3, 3, -1, 1, 183.0))
sketch7.addConstraint(Sketcher.Constraint("DistanceY", 4, 3, -1, 1, 117.0))
sketch7.addConstraint(Sketcher.Constraint("DistanceX", -1, 1, 6, 3, 19.4))
pocket6 = body.newObject("PartDesign::Pocket", "Pocket005")
pocket6.Profile = sketch7
pocket6.Length = 10
pocket6.Reversed = True

doc.recompute()
